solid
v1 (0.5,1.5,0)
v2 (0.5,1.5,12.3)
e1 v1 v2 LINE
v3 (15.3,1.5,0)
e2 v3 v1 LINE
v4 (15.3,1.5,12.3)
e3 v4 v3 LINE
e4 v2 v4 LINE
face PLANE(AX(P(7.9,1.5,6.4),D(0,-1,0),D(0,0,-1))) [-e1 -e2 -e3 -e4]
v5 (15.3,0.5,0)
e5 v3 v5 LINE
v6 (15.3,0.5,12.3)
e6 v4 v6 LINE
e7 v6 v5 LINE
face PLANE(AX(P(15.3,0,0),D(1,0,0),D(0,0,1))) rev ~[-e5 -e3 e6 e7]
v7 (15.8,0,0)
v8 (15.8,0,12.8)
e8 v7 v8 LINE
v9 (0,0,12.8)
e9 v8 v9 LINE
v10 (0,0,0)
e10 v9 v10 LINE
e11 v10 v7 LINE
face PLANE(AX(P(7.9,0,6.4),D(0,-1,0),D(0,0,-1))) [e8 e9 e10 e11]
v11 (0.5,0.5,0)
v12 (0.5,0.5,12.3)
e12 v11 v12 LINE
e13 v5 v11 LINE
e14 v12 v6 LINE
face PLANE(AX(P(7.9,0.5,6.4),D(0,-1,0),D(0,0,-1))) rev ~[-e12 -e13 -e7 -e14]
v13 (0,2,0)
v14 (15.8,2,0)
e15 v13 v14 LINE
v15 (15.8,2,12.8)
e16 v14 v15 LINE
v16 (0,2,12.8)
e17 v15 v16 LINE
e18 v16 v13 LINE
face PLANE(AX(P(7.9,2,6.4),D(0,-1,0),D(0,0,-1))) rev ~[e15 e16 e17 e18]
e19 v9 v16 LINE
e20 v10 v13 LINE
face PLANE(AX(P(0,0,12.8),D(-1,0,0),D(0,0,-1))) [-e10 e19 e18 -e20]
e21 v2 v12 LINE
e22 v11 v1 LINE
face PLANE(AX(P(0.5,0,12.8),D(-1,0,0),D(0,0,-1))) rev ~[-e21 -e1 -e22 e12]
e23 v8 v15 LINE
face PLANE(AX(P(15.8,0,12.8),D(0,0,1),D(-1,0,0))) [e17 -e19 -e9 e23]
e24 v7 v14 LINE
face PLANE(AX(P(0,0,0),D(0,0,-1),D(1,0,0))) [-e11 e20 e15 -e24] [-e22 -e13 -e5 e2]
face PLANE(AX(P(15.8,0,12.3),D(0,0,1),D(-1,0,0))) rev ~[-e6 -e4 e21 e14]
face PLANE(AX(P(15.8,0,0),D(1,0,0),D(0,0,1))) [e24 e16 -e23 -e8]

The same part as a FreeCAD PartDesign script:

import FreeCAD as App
import Part
import Sketcher

V = App.Vector
Q = App.Units.Quantity


def faces_at(feature, points):
    """Names of the faces that lie closest to the given points."""
    faces = feature.Shape.Faces
    near = lambda p: min(range(len(faces)), key=lambda i: faces[i].distToShape(Part.Vertex(*p))[0])
    return sorted({f"Face{near(p) + 1}" for p in points})

doc = App.newDocument("Part")
params = doc.addObject("Spreadsheet::Sheet", "Params")
for row, (alias, value) in enumerate([
    ("sketch1_width", "15.8 mm"),
    ("sketch1_height", "12.8 mm"),
    ("pad1_length", "2 mm"),
    ("thickness_wall", "0.5 mm"),
], start=1):
    params.set(f"A{row}", alias)
    params.set(f"B{row}", "=" + value)
    params.setAlias(f"B{row}", alias)

body = doc.addObject("PartDesign::Body", "Body")

sketch1 = doc.addObject("Sketcher::SketchObject", "Sketch")
body.addObject(sketch1)
sketch1.AttachmentSupport = (doc.XZ_Plane, [""])
sketch1.MapMode = "FlatFace"
sketch1.addGeometry([
    Part.LineSegment(V(0, 0, 0), V(15.8, 0, 0)),
    Part.LineSegment(V(15.8, 0, 0), V(15.8, 12.8, 0)),
    Part.LineSegment(V(15.8, 12.8, 0), V(0, 12.8, 0)),
    Part.LineSegment(V(0, 12.8, 0), V(0, 0, 0)),
], False)
sketch1.addConstraint([
    Sketcher.Constraint("Coincident", 0, 2, 1, 1),
    Sketcher.Constraint("Coincident", 1, 2, 2, 1),
    Sketcher.Constraint("Coincident", 2, 2, 3, 1),
    Sketcher.Constraint("Coincident", 3, 2, 0, 1),
    Sketcher.Constraint("Horizontal", 0),
    Sketcher.Constraint("Vertical", 1),
    Sketcher.Constraint("Horizontal", 2),
    Sketcher.Constraint("Vertical", 3),
    Sketcher.Constraint("Coincident", 3, 2, -1, 1),
    Sketcher.Constraint("DistanceX", 0, 1, 0, 2, Q("15.8 mm")),
    Sketcher.Constraint("DistanceY", 1, 1, 1, 2, Q("12.8 mm")),
])
sketch1.setExpression("Constraints[9]", "Params.sketch1_width")
sketch1.setExpression("Constraints[10]", "Params.sketch1_height")
pad1 = doc.addObject("PartDesign::Pad", "Pad")
body.addObject(pad1)
pad1.Profile = sketch1
pad1.setExpression("Length", "Params.pad1_length")
pad1.Reversed = True
doc.recompute()

thickness = doc.addObject("PartDesign::Thickness", "Thickness")
body.addObject(thickness)
thickness.Base = (pad1, faces_at(pad1, [(2.475, 1.647, 0)]))
thickness.setExpression("Value", "Params.thickness_wall")
thickness.Reversed = True
thickness.Join = "Intersection"

doc.recompute()
